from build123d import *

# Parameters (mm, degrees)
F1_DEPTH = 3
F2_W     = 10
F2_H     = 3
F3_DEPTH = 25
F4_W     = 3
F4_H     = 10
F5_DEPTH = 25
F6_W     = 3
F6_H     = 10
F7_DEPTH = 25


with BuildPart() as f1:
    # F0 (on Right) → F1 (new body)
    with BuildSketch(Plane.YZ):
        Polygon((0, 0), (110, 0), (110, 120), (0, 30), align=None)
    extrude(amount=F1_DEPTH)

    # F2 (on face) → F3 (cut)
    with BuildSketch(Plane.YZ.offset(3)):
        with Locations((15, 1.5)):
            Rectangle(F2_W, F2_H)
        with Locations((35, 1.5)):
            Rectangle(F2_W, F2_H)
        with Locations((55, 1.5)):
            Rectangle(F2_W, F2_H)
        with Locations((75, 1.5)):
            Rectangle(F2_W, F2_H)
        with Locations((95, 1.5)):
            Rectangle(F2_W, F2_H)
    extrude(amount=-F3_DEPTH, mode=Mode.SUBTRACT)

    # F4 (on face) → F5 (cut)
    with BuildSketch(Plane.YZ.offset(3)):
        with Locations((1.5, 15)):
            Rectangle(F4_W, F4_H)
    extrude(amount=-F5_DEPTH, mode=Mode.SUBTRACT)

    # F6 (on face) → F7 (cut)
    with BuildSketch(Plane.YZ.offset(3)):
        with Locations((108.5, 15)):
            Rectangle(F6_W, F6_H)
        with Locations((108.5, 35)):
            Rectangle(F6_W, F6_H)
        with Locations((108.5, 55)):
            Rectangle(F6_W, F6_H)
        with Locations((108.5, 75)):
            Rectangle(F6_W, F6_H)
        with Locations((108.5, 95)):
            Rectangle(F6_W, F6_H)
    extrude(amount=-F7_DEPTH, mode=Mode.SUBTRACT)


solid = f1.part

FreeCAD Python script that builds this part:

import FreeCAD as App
import Part
import Sketcher
Q = App.Units.Quantity

doc = App.newDocument("Part")
body = doc.addObject("PartDesign::Body", "Body")

# Sketch on YZ plane
sketch1 = body.newObject("Sketcher::SketchObject", "Sketch")
sketch1.AttachmentSupport = (doc.getObject("YZ_Plane"), [""])
sketch1.MapMode = "FlatFace"
sketch1.addGeometry(Part.LineSegment(App.Vector(0, 0, 0), App.Vector(110, 0, 0)), False)
sketch1.addGeometry(Part.LineSegment(App.Vector(110, 0, 0), App.Vector(110, 120, 0)), False)
sketch1.addGeometry(Part.LineSegment(App.Vector(110, 120, 0), App.Vector(0, 30, 0)), False)
sketch1.addGeometry(Part.LineSegment(App.Vector(0, 30, 0), App.Vector(0, 0, 0)), False)
sketch1.addConstraint(Sketcher.Constraint("Coincident", 0, 2, 1, 1))
sketch1.addConstraint(Sketcher.Constraint("Coincident", 1, 2, 2, 1))
sketch1.addConstraint(Sketcher.Constraint("Coincident", 2, 2, 3, 1))
sketch1.addConstraint(Sketcher.Constraint("Coincident", 3, 2, 0, 1))
sketch1.addConstraint(Sketcher.Constraint("Horizontal", 0))
sketch1.addConstraint(Sketcher.Constraint("Vertical", 1))
sketch1.addConstraint(Sketcher.Constraint("Vertical", 3))
sketch1.addConstraint(Sketcher.Constraint("Coincident", 3, 2, -1, 1))
sketch1.addConstraint(Sketcher.Constraint("DistanceX", 0, 1, 0, 2, Q("110 mm")))
sketch1.addConstraint(Sketcher.Constraint("DistanceY", 1, 1, 1, 2, Q("120 mm")))
sketch1.addConstraint(Sketcher.Constraint("DistanceY", 3, 2, 3, 1, Q("30 mm")))
pad1 = body.newObject("PartDesign::Pad", "Pad")
pad1.Profile = sketch1
pad1.Length = 3

# Sketch on YZ plane
sketch2 = body.newObject("Sketcher::SketchObject", "Sketch001")
sketch2.AttachmentSupport = (doc.getObject("YZ_Plane"), [""])
sketch2.MapMode = "FlatFace"
sketch2.AttachmentOffset = App.Placement(App.Vector(0, 0, 3), App.Rotation())
sketch2.addGeometry(Part.LineSegment(App.Vector(10, 3, 0), App.Vector(10, 0, 0)), False)
sketch2.addGeometry(Part.LineSegment(App.Vector(10, 0, 0), App.Vector(20, 0, 0)), False)
sketch2.addGeometry(Part.LineSegment(App.Vector(20, 0, 0), App.Vector(20, 3, 0)), False)
sketch2.addGeometry(Part.LineSegment(App.Vector(20, 3, 0), App.Vector(10, 3, 0)), False)
sketch2.addGeometry(Part.LineSegment(App.Vector(30, 3, 0), App.Vector(30, 0, 0)), False)
sketch2.addGeometry(Part.LineSegment(App.Vector(30, 0, 0), App.Vector(40, 0, 0)), False)
sketch2.addGeometry(Part.LineSegment(App.Vector(40, 0, 0), App.Vector(40, 3, 0)), False)
sketch2.addGeometry(Part.LineSegment(App.Vector(40, 3, 0), App.Vector(30, 3, 0)), False)
sketch2.addGeometry(Part.LineSegment(App.Vector(50, 3, 0), App.Vector(50, 0, 0)), False)
sketch2.addGeometry(Part.LineSegment(App.Vector(50, 0, 0), App.Vector(60, 0, 0)), False)
sketch2.addGeometry(Part.LineSegment(App.Vector(60, 0, 0), App.Vector(60, 3, 0)), False)
sketch2.addGeometry(Part.LineSegment(App.Vector(60, 3, 0), App.Vector(50, 3, 0)), False)
sketch2.addGeometry(Part.LineSegment(App.Vector(70, 3, 0), App.Vector(70, 0, 0)), False)
sketch2.addGeometry(Part.LineSegment(App.Vector(70, 0, 0), App.Vector(80, 0, 0)), False)
sketch2.addGeometry(Part.LineSegment(App.Vector(80, 0, 0), App.Vector(80, 3, 0)), False)
sketch2.addGeometry(Part.LineSegment(App.Vector(80, 3, 0), App.Vector(70, 3, 0)), False)
sketch2.addGeometry(Part.LineSegment(App.Vector(90, 3, 0), App.Vector(90, 0, 0)), False)
sketch2.addGeometry(Part.LineSegment(App.Vector(90, 0, 0), App.Vector(100, 0, 0)), False)
sketch2.addGeometry(Part.LineSegment(App.Vector(100, 0, 0), App.Vector(100, 3, 0)), False)
sketch2.addGeometry(Part.LineSegment(App.Vector(100, 3, 0), App.Vector(90, 3, 0)), False)
sketch2.addConstraint(Sketcher.Constraint("Coincident", 0, 2, 1, 1))
sketch2.addConstraint(Sketcher.Constraint("Coincident", 1, 2, 2, 1))
sketch2.addConstraint(Sketcher.Constraint("Coincident", 2, 2, 3, 1))
sketch2.addConstraint(Sketcher.Constraint("Coincident", 3, 2, 0, 1))
sketch2.addConstraint(Sketcher.Constraint("Coincident", 4, 2, 5, 1))
sketch2.addConstraint(Sketcher.Constraint("Coincident", 5, 2, 6, 1))
sketch2.addConstraint(Sketcher.Constraint("Coincident", 6, 2, 7, 1))
sketch2.addConstraint(Sketcher.Constraint("Coincident", 7, 2, 4, 1))
sketch2.addConstraint(Sketcher.Constraint("Coincident", 8, 2, 9, 1))
sketch2.addConstraint(Sketcher.Constraint("Coincident", 9, 2, 10, 1))
sketch2.addConstraint(Sketcher.Constraint("Coincident", 10, 2, 11, 1))
sketch2.addConstraint(Sketcher.Constraint("Coincident", 11, 2, 8, 1))
sketch2.addConstraint(Sketcher.Constraint("Coincident", 12, 2, 13, 1))
sketch2.addConstraint(Sketcher.Constraint("Coincident", 13, 2, 14, 1))
sketch2.addConstraint(Sketcher.Constraint("Coincident", 14, 2, 15, 1))
sketch2.addConstraint(Sketcher.Constraint("Coincident", 15, 2, 12, 1))
sketch2.addConstraint(Sketcher.Constraint("Coincident", 16, 2, 17, 1))
sketch2.addConstraint(Sketcher.Constraint("Coincident", 17, 2, 18, 1))
sketch2.addConstraint(Sketcher.Constraint("Coincident", 18, 2, 19, 1))
sketch2.addConstraint(Sketcher.Constraint("Coincident", 19, 2, 16, 1))
sketch2.addConstraint(Sketcher.Constraint("Vertical", 0))
sketch2.addConstraint(Sketcher.Constraint("Horizontal", 1))
sketch2.addConstraint(Sketcher.Constraint("Vertical", 2))
sketch2.addConstraint(Sketcher.Constraint("Horizontal", 3))
sketch2.addConstraint(Sketcher.Constraint("Vertical", 4))
sketch2.addConstraint(Sketcher.Constraint("Horizontal", 5))
sketch2.addConstraint(Sketcher.Constraint("Vertical", 6))
sketch2.addConstraint(Sketcher.Constraint("Horizontal", 7))
sketch2.addConstraint(Sketcher.Constraint("Vertical", 8))
sketch2.addConstraint(Sketcher.Constraint("Horizontal", 9))
sketch2.addConstraint(Sketcher.Constraint("Vertical", 10))
sketch2.addConstraint(Sketcher.Constraint("Horizontal", 11))
sketch2.addConstraint(Sketcher.Constraint("Vertical", 12))
sketch2.addConstraint(Sketcher.Constraint("Horizontal", 13))
sketch2.addConstraint(Sketcher.Constraint("Vertical", 14))
sketch2.addConstraint(Sketcher.Constraint("Horizontal", 15))
sketch2.addConstraint(Sketcher.Constraint("Vertical", 16))
sketch2.addConstraint(Sketcher.Constraint("Horizontal", 17))
sketch2.addConstraint(Sketcher.Constraint("Vertical", 18))
sketch2.addConstraint(Sketcher.Constraint("Horizontal", 19))
sketch2.addConstraint(Sketcher.Constraint("PointOnObject", 0, 2, -1))
sketch2.addConstraint(Sketcher.Constraint("PointOnObject", 4, 2, -1))
sketch2.addConstraint(Sketcher.Constraint("PointOnObject", 8, 2, -1))
sketch2.addConstraint(Sketcher.Constraint("PointOnObject", 12, 2, -1))
sketch2.addConstraint(Sketcher.Constraint("PointOnObject", 16, 2, -1))
sketch2.addConstraint(Sketcher.Constraint("Horizontal", 3, 2, 6, 2))
sketch2.addConstraint(Sketcher.Constraint("Horizontal", 7, 2, 10, 2))
sketch2.addConstraint(Sketcher.Constraint("Horizontal", 11, 2, 14, 2))
sketch2.addConstraint(Sketcher.Constraint("Horizontal", 15, 2, 18, 2))
sketch2.addConstraint(Sketcher.Constraint("Equal", 3, 5))
sketch2.addConstraint(Sketcher.Constraint("Equal", 7, 9))
sketch2.addConstraint(Sketcher.Constraint("Equal", 11, 13))
sketch2.addConstraint(Sketcher.Constraint("Equal", 15, 17))
sketch2.addConstraint(Sketcher.Constraint("DistanceX", 1, 1, 1, 2, Q("10 mm")))
sketch2.addConstraint(Sketcher.Constraint("DistanceY", 0, 2, 0, 1, Q("3 mm")))
sketch2.addConstraint(Sketcher.Constraint("DistanceX", -1, 1, 0, 2, Q("10 mm")))
sketch2.addConstraint(Sketcher.Constraint("DistanceX", -1, 1, 4, 2, Q("30 mm")))
sketch2.addConstraint(Sketcher.Constraint("DistanceX", -1, 1, 8, 2, Q("50 mm")))
sketch2.addConstraint(Sketcher.Constraint("DistanceX", -1, 1, 12, 2, Q("70 mm")))
sketch2.addConstraint(Sketcher.Constraint("DistanceX", -1, 1, 16, 2, Q("90 mm")))
pocket1 = body.newObject("PartDesign::Pocket", "Pocket")
pocket1.Profile = sketch2
pocket1.Length = 25

# Sketch on YZ plane
sketch3 = body.newObject("Sketcher::SketchObject", "Sketch002")
sketch3.AttachmentSupport = (doc.getObject("YZ_Plane"), [""])
sketch3.MapMode = "FlatFace"
sketch3.AttachmentOffset = App.Placement(App.Vector(0, 0, 3), App.Rotation())
sketch3.addGeometry(Part.LineSegment(App.Vector(0, 20, 0), App.Vector(0, 10, 0)), False)
sketch3.addGeometry(Part.LineSegment(App.Vector(0, 10, 0), App.Vector(3, 10, 0)), False)
sketch3.addGeometry(Part.LineSegment(App.Vector(3, 10, 0), App.Vector(3, 20, 0)), False)
sketch3.addGeometry(Part.LineSegment(App.Vector(3, 20, 0), App.Vector(0, 20, 0)), False)
sketch3.addConstraint(Sketcher.Constraint("Coincident", 0, 2, 1, 1))
sketch3.addConstraint(Sketcher.Constraint("Coincident", 1, 2, 2, 1))
sketch3.addConstraint(Sketcher.Constraint("Coincident", 2, 2, 3, 1))
sketch3.addConstraint(Sketcher.Constraint("Coincident", 3, 2, 0, 1))
sketch3.addConstraint(Sketcher.Constraint("Vertical", 0))
sketch3.addConstraint(Sketcher.Constraint("Horizontal", 1))
sketch3.addConstraint(Sketcher.Constraint("Vertical", 2))
sketch3.addConstraint(Sketcher.Constraint("Horizontal", 3))
sketch3.addConstraint(Sketcher.Constraint("PointOnObject", 0, 2, -2))
sketch3.addConstraint(Sketcher.Constraint("DistanceX", 1, 1, 1, 2, Q("3 mm")))
sketch3.addConstraint(Sketcher.Constraint("DistanceY", 0, 2, 0, 1, Q("10 mm")))
sketch3.addConstraint(Sketcher.Constraint("DistanceY", -1, 1, 0, 2, Q("10 mm")))
pocket2 = body.newObject("PartDesign::Pocket", "Pocket001")
pocket2.Profile = sketch3
pocket2.Length = 25

# Sketch on YZ plane
sketch4 = body.newObject("Sketcher::SketchObject", "Sketch003")
sketch4.AttachmentSupport = (doc.getObject("YZ_Plane"), [""])
sketch4.MapMode = "FlatFace"
sketch4.AttachmentOffset = App.Placement(App.Vector(0, 0, 3), App.Rotation())
sketch4.addGeometry(Part.LineSegment(App.Vector(107, 20, 0), App.Vector(107, 10, 0)), False)
sketch4.addGeometry(Part.LineSegment(App.Vector(107, 10, 0), App.Vector(110, 10, 0)), False)
sketch4.addGeometry(Part.LineSegment(App.Vector(110, 10, 0), App.Vector(110, 20, 0)), False)
sketch4.addGeometry(Part.LineSegment(App.Vector(110, 20, 0), App.Vector(107, 20, 0)), False)
sketch4.addGeometry(Part.LineSegment(App.Vector(107, 40, 0), App.Vector(107, 30, 0)), False)
sketch4.addGeometry(Part.LineSegment(App.Vector(107, 30, 0), App.Vector(110, 30, 0)), False)
sketch4.addGeometry(Part.LineSegment(App.Vector(110, 30, 0), App.Vector(110, 40, 0)), False)
sketch4.addGeometry(Part.LineSegment(App.Vector(110, 40, 0), App.Vector(107, 40, 0)), False)
sketch4.addGeometry(Part.LineSegment(App.Vector(107, 60, 0), App.Vector(107, 50, 0)), False)
sketch4.addGeometry(Part.LineSegment(App.Vector(107, 50, 0), App.Vector(110, 50, 0)), False)
sketch4.addGeometry(Part.LineSegment(App.Vector(110, 50, 0), App.Vector(110, 60, 0)), False)
sketch4.addGeometry(Part.LineSegment(App.Vector(110, 60, 0), App.Vector(107, 60, 0)), False)
sketch4.addGeometry(Part.LineSegment(App.Vector(107, 80, 0), App.Vector(107, 70, 0)), False)
sketch4.addGeometry(Part.LineSegment(App.Vector(107, 70, 0), App.Vector(110, 70, 0)), False)
sketch4.addGeometry(Part.LineSegment(App.Vector(110, 70, 0), App.Vector(110, 80, 0)), False)
sketch4.addGeometry(Part.LineSegment(App.Vector(110, 80, 0), App.Vector(107, 80, 0)), False)
sketch4.addGeometry(Part.LineSegment(App.Vector(107, 100, 0), App.Vector(107, 90, 0)), False)
sketch4.addGeometry(Part.LineSegment(App.Vector(107, 90, 0), App.Vector(110, 90, 0)), False)
sketch4.addGeometry(Part.LineSegment(App.Vector(110, 90, 0), App.Vector(110, 100, 0)), False)
sketch4.addGeometry(Part.LineSegment(App.Vector(110, 100, 0), App.Vector(107, 100, 0)), False)
sketch4.addConstraint(Sketcher.Constraint("Coincident", 0, 2, 1, 1))
sketch4.addConstraint(Sketcher.Constraint("Coincident", 1, 2, 2, 1))
sketch4.addConstraint(Sketcher.Constraint("Coincident", 2, 2, 3, 1))
sketch4.addConstraint(Sketcher.Constraint("Coincident", 3, 2, 0, 1))
sketch4.addConstraint(Sketcher.Constraint("Coincident", 4, 2, 5, 1))
sketch4.addConstraint(Sketcher.Constraint("Coincident", 5, 2, 6, 1))
sketch4.addConstraint(Sketcher.Constraint("Coincident", 6, 2, 7, 1))
sketch4.addConstraint(Sketcher.Constraint("Coincident", 7, 2, 4, 1))
sketch4.addConstraint(Sketcher.Constraint("Coincident", 8, 2, 9, 1))
sketch4.addConstraint(Sketcher.Constraint("Coincident", 9, 2, 10, 1))
sketch4.addConstraint(Sketcher.Constraint("Coincident", 10, 2, 11, 1))
sketch4.addConstraint(Sketcher.Constraint("Coincident", 11, 2, 8, 1))
sketch4.addConstraint(Sketcher.Constraint("Coincident", 12, 2, 13, 1))
sketch4.addConstraint(Sketcher.Constraint("Coincident", 13, 2, 14, 1))
sketch4.addConstraint(Sketcher.Constraint("Coincident", 14, 2, 15, 1))
sketch4.addConstraint(Sketcher.Constraint("Coincident", 15, 2, 12, 1))
sketch4.addConstraint(Sketcher.Constraint("Coincident", 16, 2, 17, 1))
sketch4.addConstraint(Sketcher.Constraint("Coincident", 17, 2, 18, 1))
sketch4.addConstraint(Sketcher.Constraint("Coincident", 18, 2, 19, 1))
sketch4.addConstraint(Sketcher.Constraint("Coincident", 19, 2, 16, 1))
sketch4.addConstraint(Sketcher.Constraint("Vertical", 0))
sketch4.addConstraint(Sketcher.Constraint("Horizontal", 1))
sketch4.addConstraint(Sketcher.Constraint("Vertical", 2))
sketch4.addConstraint(Sketcher.Constraint("Horizontal", 3))
sketch4.addConstraint(Sketcher.Constraint("Vertical", 4))
sketch4.addConstraint(Sketcher.Constraint("Horizontal", 5))
sketch4.addConstraint(Sketcher.Constraint("Vertical", 6))
sketch4.addConstraint(Sketcher.Constraint("Horizontal", 7))
sketch4.addConstraint(Sketcher.Constraint("Vertical", 8))
sketch4.addConstraint(Sketcher.Constraint("Horizontal", 9))
sketch4.addConstraint(Sketcher.Constraint("Vertical", 10))
sketch4.addConstraint(Sketcher.Constraint("Horizontal", 11))
sketch4.addConstraint(Sketcher.Constraint("Vertical", 12))
sketch4.addConstraint(Sketcher.Constraint("Horizontal", 13))
sketch4.addConstraint(Sketcher.Constraint("Vertical", 14))
sketch4.addConstraint(Sketcher.Constraint("Horizontal", 15))
sketch4.addConstraint(Sketcher.Constraint("Vertical", 16))
sketch4.addConstraint(Sketcher.Constraint("Horizontal", 17))
sketch4.addConstraint(Sketcher.Constraint("Vertical", 18))
sketch4.addConstraint(Sketcher.Constraint("Horizontal", 19))
sketch4.addConstraint(Sketcher.Constraint("Vertical", 3, 2, 4, 2))
sketch4.addConstraint(Sketcher.Constraint("Vertical", 2, 2, 5, 2))
sketch4.addConstraint(Sketcher.Constraint("Vertical", 7, 2, 8, 2))
sketch4.addConstraint(Sketcher.Constraint("Vertical", 6, 2, 9, 2))
sketch4.addConstraint(Sketcher.Constraint("Vertical", 11, 2, 12, 2))
sketch4.addConstraint(Sketcher.Constraint("Vertical", 10, 2, 13, 2))
sketch4.addConstraint(Sketcher.Constraint("Vertical", 15, 2, 16, 2))
sketch4.addConstraint(Sketcher.Constraint("Vertical", 14, 2, 17, 2))
sketch4.addConstraint(Sketcher.Constraint("Equal", 2, 4))
sketch4.addConstraint(Sketcher.Constraint("Equal", 6, 8))
sketch4.addConstraint(Sketcher.Constraint("Equal", 10, 12))
sketch4.addConstraint(Sketcher.Constraint("Equal", 14, 16))
sketch4.addConstraint(Sketcher.Constraint("DistanceX", 1, 1, 1, 2, Q("3 mm")))
sketch4.addConstraint(Sketcher.Constraint("DistanceY", 0, 2, 0, 1, Q("10 mm")))
sketch4.addConstraint(Sketcher.Constraint("DistanceX", -1, 1, 0, 2, Q("107 mm")))
sketch4.addConstraint(Sketcher.Constraint("DistanceY", -1, 1, 0, 2, Q("10 mm")))
sketch4.addConstraint(Sketcher.Constraint("DistanceY", -1, 1, 4, 2, Q("30 mm")))
sketch4.addConstraint(Sketcher.Constraint("DistanceY", -1, 1, 8, 2, Q("50 mm")))
sketch4.addConstraint(Sketcher.Constraint("DistanceY", -1, 1, 12, 2, Q("70 mm")))
sketch4.addConstraint(Sketcher.Constraint("DistanceY", -1, 1, 16, 2, Q("90 mm")))
pocket3 = body.newObject("PartDesign::Pocket", "Pocket002")
pocket3.Profile = sketch4
pocket3.Length = 25

doc.recompute()
